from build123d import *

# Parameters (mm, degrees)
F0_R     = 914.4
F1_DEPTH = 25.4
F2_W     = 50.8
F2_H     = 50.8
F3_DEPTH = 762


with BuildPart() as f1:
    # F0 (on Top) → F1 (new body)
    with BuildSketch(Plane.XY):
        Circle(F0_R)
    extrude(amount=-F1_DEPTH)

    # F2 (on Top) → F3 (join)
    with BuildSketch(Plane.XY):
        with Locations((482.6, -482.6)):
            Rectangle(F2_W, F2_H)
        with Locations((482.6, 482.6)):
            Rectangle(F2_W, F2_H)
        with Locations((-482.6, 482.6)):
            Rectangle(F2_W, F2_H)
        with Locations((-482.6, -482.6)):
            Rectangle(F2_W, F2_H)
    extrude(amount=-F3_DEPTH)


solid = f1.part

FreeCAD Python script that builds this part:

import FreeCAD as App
import Part
import Sketcher

V = App.Vector
Q = App.Units.Quantity


def add_polygon(sketch, points):
    """Adds a closed chain of lines whose ends are joined by coincident constraints."""
    first, n = sketch.GeometryCount, len(points)
    for a, b in zip(points, points[1:] + points[:1]):
        sketch.addGeometry(Part.LineSegment(App.Vector(*a, 0), App.Vector(*b, 0)), False)
    for i in range(n):
        sketch.addConstraint(Sketcher.Constraint("Coincident", first + i, 2, first + (i + 1) % n, 1))

doc = App.newDocument("Part")
body = doc.addObject("PartDesign::Body", "Body")

sketch1 = body.newObject("Sketcher::SketchObject", "Sketch")
sketch1.AttachmentSupport = (doc.getObject("XY_Plane"), [""])
sketch1.MapMode = "FlatFace"
sketch1.addGeometry(Part.Circle(V(0, 0, 0), V(0, 0, 1), 914), False)
sketch1.addConstraint([
    Sketcher.Constraint("Coincident", 0, 3, -1, 1),
    Sketcher.Constraint("Diameter", 0, Q("72 in")),
])
pad1 = body.newObject("PartDesign::Pad", "Pad")
pad1.Profile = sketch1
pad1.Length = Q("1 in")
pad1.Reversed = True

sketch2 = body.newObject("Sketcher::SketchObject", "Sketch001")
sketch2.AttachmentSupport = (doc.getObject("XY_Plane"), [""])
sketch2.MapMode = "FlatFace"
add_polygon(sketch2, [(457, -457), (457, -508), (508, -508), (508, -457)])
add_polygon(sketch2, [(457, 508), (457, 457), (508, 457), (508, 508)])
add_polygon(sketch2, [(-508, 508), (-508, 457), (-457, 457), (-457, 508)])
add_polygon(sketch2, [(-508, -457), (-508, -508), (-457, -508), (-457, -457)])
sketch2.addConstraint([
    Sketcher.Constraint("Vertical", 0),
    Sketcher.Constraint("Horizontal", 1),
    Sketcher.Constraint("Vertical", 2),
    Sketcher.Constraint("Horizontal", 3),
    Sketcher.Constraint("Vertical", 4),
    Sketcher.Constraint("Horizontal", 5),
    Sketcher.Constraint("Vertical", 6),
    Sketcher.Constraint("Horizontal", 7),
    Sketcher.Constraint("Vertical", 8),
    Sketcher.Constraint("Horizontal", 9),
    Sketcher.Constraint("Vertical", 10),
    Sketcher.Constraint("Horizontal", 11),
    Sketcher.Constraint("Vertical", 12),
    Sketcher.Constraint("Horizontal", 13),
    Sketcher.Constraint("Vertical", 14),
    Sketcher.Constraint("Horizontal", 15),
    Sketcher.Constraint("Symmetric", 2, 2, 8, 2, -1, 1),
    Sketcher.Constraint("Symmetric", 0, 2, 10, 2, -1, 1),
    Sketcher.Constraint("Symmetric", 6, 2, 12, 2, -1, 1),
    Sketcher.Constraint("Symmetric", 4, 2, 14, 2, -1, 1),
    Sketcher.Constraint("Symmetric", 5, 2, 8, 2, -2),
    Sketcher.Constraint("Symmetric", 7, 2, 10, 2, -2),
    Sketcher.Constraint("Equal", 15, 0),
    Sketcher.Constraint("DistanceX", 1, 1, 1, 2, Q("2 in")),
    Sketcher.Constraint("DistanceX", -1, 1, 0, 2, Q("18 in")),
    Sketcher.Constraint("DistanceY", 0, 2, -1, 1, Q("20 in")),
])
pad2 = body.newObject("PartDesign::Pad", "Pad001")
pad2.Profile = sketch2
pad2.Length = Q("30 in")
pad2.Reversed = True

doc.recompute()
